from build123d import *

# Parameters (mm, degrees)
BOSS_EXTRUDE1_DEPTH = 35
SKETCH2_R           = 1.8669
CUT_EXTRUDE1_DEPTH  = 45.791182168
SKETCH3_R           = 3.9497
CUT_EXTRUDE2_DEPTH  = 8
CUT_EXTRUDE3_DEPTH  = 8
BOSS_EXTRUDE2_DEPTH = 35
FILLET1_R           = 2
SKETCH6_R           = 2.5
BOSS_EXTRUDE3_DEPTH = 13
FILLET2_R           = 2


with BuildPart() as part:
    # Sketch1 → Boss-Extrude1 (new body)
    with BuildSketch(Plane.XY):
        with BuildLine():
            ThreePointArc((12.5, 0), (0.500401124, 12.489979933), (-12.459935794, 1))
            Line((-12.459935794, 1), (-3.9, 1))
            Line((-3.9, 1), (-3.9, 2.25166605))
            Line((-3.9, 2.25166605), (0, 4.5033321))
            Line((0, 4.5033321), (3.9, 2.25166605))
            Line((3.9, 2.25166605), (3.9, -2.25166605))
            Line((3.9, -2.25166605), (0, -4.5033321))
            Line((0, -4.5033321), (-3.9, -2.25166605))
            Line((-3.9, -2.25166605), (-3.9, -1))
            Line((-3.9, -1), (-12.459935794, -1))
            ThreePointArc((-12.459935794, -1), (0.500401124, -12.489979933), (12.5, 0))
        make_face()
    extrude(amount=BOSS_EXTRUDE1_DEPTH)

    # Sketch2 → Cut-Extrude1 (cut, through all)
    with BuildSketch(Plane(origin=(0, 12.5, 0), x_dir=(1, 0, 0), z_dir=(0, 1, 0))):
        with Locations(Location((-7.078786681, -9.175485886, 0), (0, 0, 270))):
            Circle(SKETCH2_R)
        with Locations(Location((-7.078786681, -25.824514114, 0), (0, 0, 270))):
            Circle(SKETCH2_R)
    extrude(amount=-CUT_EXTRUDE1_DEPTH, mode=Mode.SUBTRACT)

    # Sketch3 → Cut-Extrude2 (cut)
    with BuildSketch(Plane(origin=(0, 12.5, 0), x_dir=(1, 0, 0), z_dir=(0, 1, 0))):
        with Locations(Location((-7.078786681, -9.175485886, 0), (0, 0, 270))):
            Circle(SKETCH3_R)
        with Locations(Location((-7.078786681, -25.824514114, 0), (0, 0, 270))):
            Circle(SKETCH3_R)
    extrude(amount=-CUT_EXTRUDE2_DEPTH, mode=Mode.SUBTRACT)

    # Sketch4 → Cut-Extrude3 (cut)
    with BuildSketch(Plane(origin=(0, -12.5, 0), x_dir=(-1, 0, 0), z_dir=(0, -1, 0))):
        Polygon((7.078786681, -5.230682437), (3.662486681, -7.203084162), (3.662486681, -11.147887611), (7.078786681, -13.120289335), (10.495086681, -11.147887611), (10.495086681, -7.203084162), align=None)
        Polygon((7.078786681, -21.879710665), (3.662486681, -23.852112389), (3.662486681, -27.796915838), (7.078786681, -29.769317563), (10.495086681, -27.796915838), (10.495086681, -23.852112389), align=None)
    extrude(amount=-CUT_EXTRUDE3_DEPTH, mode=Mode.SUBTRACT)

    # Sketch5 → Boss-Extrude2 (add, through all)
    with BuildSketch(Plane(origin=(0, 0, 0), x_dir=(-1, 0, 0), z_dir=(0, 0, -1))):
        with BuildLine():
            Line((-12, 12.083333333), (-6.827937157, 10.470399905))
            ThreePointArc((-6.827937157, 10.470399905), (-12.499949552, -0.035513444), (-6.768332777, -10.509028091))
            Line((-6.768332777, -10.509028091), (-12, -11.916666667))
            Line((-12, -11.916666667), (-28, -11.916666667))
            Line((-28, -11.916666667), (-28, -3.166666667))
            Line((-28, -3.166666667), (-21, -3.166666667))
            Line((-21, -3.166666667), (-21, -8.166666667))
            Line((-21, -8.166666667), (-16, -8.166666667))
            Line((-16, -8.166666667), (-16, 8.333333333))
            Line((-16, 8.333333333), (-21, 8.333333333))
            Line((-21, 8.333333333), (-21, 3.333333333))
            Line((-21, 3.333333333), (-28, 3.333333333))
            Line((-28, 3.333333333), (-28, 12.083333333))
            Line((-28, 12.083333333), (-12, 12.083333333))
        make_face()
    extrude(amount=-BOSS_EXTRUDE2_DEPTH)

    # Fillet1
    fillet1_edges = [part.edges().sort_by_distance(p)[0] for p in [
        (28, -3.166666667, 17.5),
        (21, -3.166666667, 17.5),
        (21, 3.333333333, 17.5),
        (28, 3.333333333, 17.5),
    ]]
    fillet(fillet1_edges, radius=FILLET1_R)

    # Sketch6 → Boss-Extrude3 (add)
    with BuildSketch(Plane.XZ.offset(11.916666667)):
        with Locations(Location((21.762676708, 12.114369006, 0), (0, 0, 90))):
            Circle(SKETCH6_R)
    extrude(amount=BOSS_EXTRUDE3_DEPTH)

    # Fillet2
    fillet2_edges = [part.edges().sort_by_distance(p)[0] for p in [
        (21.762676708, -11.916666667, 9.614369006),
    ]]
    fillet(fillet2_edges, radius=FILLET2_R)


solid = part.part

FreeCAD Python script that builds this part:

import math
import FreeCAD as App
import Part
import Sketcher
Q = App.Units.Quantity


def edges_at(feature, points):
    """Names of the edges that pass closest to the given points."""
    edges = feature.Shape.Edges
    near = lambda p: min(range(len(edges)), key=lambda i: edges[i].distToShape(Part.Vertex(*p))[0])
    return sorted({f"Edge{near(p) + 1}" for p in points})


def add_polygon(sketch, points):
    """Adds a closed chain of lines whose ends are joined by coincident constraints."""
    first, n = sketch.GeometryCount, len(points)
    for a, b in zip(points, points[1:] + points[:1]):
        sketch.addGeometry(Part.LineSegment(App.Vector(*a, 0), App.Vector(*b, 0)), False)
    for i in range(n):
        sketch.addConstraint(Sketcher.Constraint("Coincident", first + i, 2, first + (i + 1) % n, 1))

doc = App.newDocument("Part")
body = doc.addObject("PartDesign::Body", "Body")

sketch1 = body.newObject("Sketcher::SketchObject", "Sketch")
sketch1.AttachmentSupport = (doc.getObject("XY_Plane"), [""])
sketch1.MapMode = "FlatFace"
sketch1.addGeometry(Part.ArcOfCircle(Part.Circle(App.Vector(0, 0, 0), App.Vector(0, 0, 1), 12.5), math.radians(0), math.radians(175)), False)
sketch1.addGeometry(Part.LineSegment(App.Vector(-12.5, 1, 0), App.Vector(-3.9, 1, 0)), False)
sketch1.addGeometry(Part.LineSegment(App.Vector(-3.9, 1, 0), App.Vector(-3.9, 2.3, 0)), False)
sketch1.addGeometry(Part.LineSegment(App.Vector(-3.9, 2.3, 0), App.Vector(0, 4.5, 0)), False)
sketch1.addGeometry(Part.LineSegment(App.Vector(0, 4.5, 0), App.Vector(3.9, 2.3, 0)), False)
sketch1.addGeometry(Part.LineSegment(App.Vector(3.9, 2.3, 0), App.Vector(3.9, -2.3, 0)), False)
sketch1.addGeometry(Part.LineSegment(App.Vector(3.9, -2.3, 0), App.Vector(0, -4.5, 0)), False)
sketch1.addGeometry(Part.LineSegment(App.Vector(0, -4.5, 0), App.Vector(-3.9, -2.3, 0)), False)
sketch1.addGeometry(Part.LineSegment(App.Vector(-3.9, -2.3, 0), App.Vector(-3.9, -1, 0)), False)
sketch1.addGeometry(Part.LineSegment(App.Vector(-3.9, -1, 0), App.Vector(-12.5, -1, 0)), False)
sketch1.addGeometry(Part.ArcOfCircle(Part.Circle(App.Vector(0, 0, 0), App.Vector(0, 0, 1), 12.5), math.radians(-175), math.radians(0)), False)
sketch1.addConstraint(Sketcher.Constraint("Coincident", 0, 2, 1, 1))
sketch1.addConstraint(Sketcher.Constraint("Coincident", 1, 2, 2, 1))
sketch1.addConstraint(Sketcher.Constraint("Coincident", 2, 2, 3, 1))
sketch1.addConstraint(Sketcher.Constraint("Coincident", 3, 2, 4, 1))
sketch1.addConstraint(Sketcher.Constraint("Coincident", 4, 2, 5, 1))
sketch1.addConstraint(Sketcher.Constraint("Coincident", 5, 2, 6, 1))
sketch1.addConstraint(Sketcher.Constraint("Coincident", 6, 2, 7, 1))
sketch1.addConstraint(Sketcher.Constraint("Coincident", 7, 2, 8, 1))
sketch1.addConstraint(Sketcher.Constraint("Coincident", 8, 2, 9, 1))
sketch1.addConstraint(Sketcher.Constraint("Coincident", 9, 2, 10, 1))
sketch1.addConstraint(Sketcher.Constraint("Tangent", 10, 2, 0, 1))
sketch1.addConstraint(Sketcher.Constraint("Horizontal", 1))
sketch1.addConstraint(Sketcher.Constraint("Vertical", 2))
sketch1.addConstraint(Sketcher.Constraint("Vertical", 5))
sketch1.addConstraint(Sketcher.Constraint("Vertical", 8))
sketch1.addConstraint(Sketcher.Constraint("Horizontal", 9))
sketch1.addConstraint(Sketcher.Constraint("Coincident", 0, 3, -1, 1))
sketch1.addConstraint(Sketcher.Constraint("Equal", 0, 10))
sketch1.addConstraint(Sketcher.Constraint("Symmetric", 2, 2, 5, 2, -1, 1))
sketch1.addConstraint(Sketcher.Constraint("Symmetric", 3, 2, 6, 2, -1, 1))
sketch1.addConstraint(Sketcher.Constraint("Symmetric", 4, 2, 7, 2, -1, 1))
sketch1.addConstraint(Sketcher.Constraint("PointOnObject", 3, 2, -2))
sketch1.addConstraint(Sketcher.Constraint("PointOnObject", 10, 2, -1))
sketch1.addConstraint(Sketcher.Constraint("Horizontal", 2, 2, 4, 2))
sketch1.addConstraint(Sketcher.Constraint("Vertical", 0, 2, 9, 2))
sketch1.addConstraint(Sketcher.Constraint("Radius", 0, 12.5))
sketch1.addConstraint(Sketcher.Constraint("Angle", 3, Q("30 deg")))
sketch1.addConstraint(Sketcher.Constraint("DistanceY", -1, 1, 0, 2, 1.0))
sketch1.addConstraint(Sketcher.Constraint("DistanceX", 1, 2, -1, 1, 3.9))
sketch1.addConstraint(Sketcher.Constraint("DistanceY", 5, 2, 3, 2, 6.754998))
pad1 = body.newObject("PartDesign::Pad", "Pad")
pad1.Profile = sketch1
pad1.Length = 35

sketch2 = body.newObject("Sketcher::SketchObject", "Sketch001")
sketch2.AttachmentSupport = (doc.getObject("XZ_Plane"), [""])
sketch2.MapMode = "FlatFace"
sketch2.AttachmentOffset = App.Placement(App.Vector(0, 0, -12.5), App.Rotation())
sketch2.addGeometry(Part.Circle(App.Vector(-7.1, 9.2, 0), App.Vector(0, 0, 1), 1.9), False)
sketch2.addGeometry(Part.Circle(App.Vector(-7.1, 25.8, 0), App.Vector(0, 0, 1), 1.9), False)
sketch2.addConstraint(Sketcher.Constraint("Equal", 0, 1))
sketch2.addConstraint(Sketcher.Constraint("Vertical", 0, 3, 1, 3))
sketch2.addConstraint(Sketcher.Constraint("Diameter", 0, 3.7338))
sketch2.addConstraint(Sketcher.Constraint("DistanceY", 0, 3, 1, 3, 16.649028))
sketch2.addConstraint(Sketcher.Constraint("DistanceX", 0, 3, -1, 1, 7.078787))
sketch2.addConstraint(Sketcher.Constraint("DistanceY", -1, 1, 0, 3, 9.175486))
pocket1 = body.newObject("PartDesign::Pocket", "Pocket")
pocket1.Profile = sketch2
pocket1.Type = "ThroughAll"
pocket1.Reversed = True

sketch3 = body.newObject("Sketcher::SketchObject", "Sketch002")
sketch3.AttachmentSupport = (doc.getObject("XZ_Plane"), [""])
sketch3.MapMode = "FlatFace"
sketch3.AttachmentOffset = App.Placement(App.Vector(0, 0, -12.5), App.Rotation())
sketch3.addGeometry(Part.Circle(App.Vector(-7.1, 9.2, 0), App.Vector(0, 0, 1), 3.9), False)
sketch3.addGeometry(Part.Circle(App.Vector(-7.1, 25.8, 0), App.Vector(0, 0, 1), 3.9), False)
sketch3.addConstraint(Sketcher.Constraint("Equal", 0, 1))
sketch3.addConstraint(Sketcher.Constraint("Vertical", 0, 3, 1, 3))
sketch3.addConstraint(Sketcher.Constraint("Diameter", 0, 7.8994))
sketch3.addConstraint(Sketcher.Constraint("DistanceY", 0, 3, 1, 3, 16.649028))
sketch3.addConstraint(Sketcher.Constraint("DistanceX", 0, 3, -1, 1, 7.078787))
sketch3.addConstraint(Sketcher.Constraint("DistanceY", -1, 1, 0, 3, 9.175486))
pocket2 = body.newObject("PartDesign::Pocket", "Pocket001")
pocket2.Profile = sketch3
pocket2.Length = 8
pocket2.Reversed = True

sketch4 = body.newObject("Sketcher::SketchObject", "Sketch003")
sketch4.AttachmentSupport = (doc.getObject("XZ_Plane"), [""])
sketch4.MapMode = "FlatFace"
sketch4.AttachmentOffset = App.Placement(App.Vector(0, 0, 12.5), App.Rotation())
add_polygon(sketch4, [(-7.1, 5.2), (-3.7, 7.2), (-3.7, 11.1), (-7.1, 13.1), (-10.5, 11.1), (-10.5, 7.2)])
add_polygon(sketch4, [(-7.1, 21.9), (-3.7, 23.9), (-3.7, 27.8), (-7.1, 29.8), (-10.5, 27.8), (-10.5, 23.9)])
sketch4.addConstraint(Sketcher.Constraint("Vertical", 1))
sketch4.addConstraint(Sketcher.Constraint("Vertical", 4))
sketch4.addConstraint(Sketcher.Constraint("Vertical", 7))
sketch4.addConstraint(Sketcher.Constraint("Vertical", 10))
sketch4.addConstraint(Sketcher.Constraint("Parallel", 0, 3))
sketch4.addConstraint(Sketcher.Constraint("Parallel", 2, 5))
sketch4.addConstraint(Sketcher.Constraint("Parallel", 3, 6))
sketch4.addConstraint(Sketcher.Constraint("Parallel", 5, 8))
sketch4.addConstraint(Sketcher.Constraint("Parallel", 6, 9))
sketch4.addConstraint(Sketcher.Constraint("Parallel", 8, 11))
sketch4.addConstraint(Sketcher.Constraint("Horizontal", 1, 2, 3, 2))
sketch4.addConstraint(Sketcher.Constraint("Horizontal", 0, 2, 4, 2))
sketch4.addConstraint(Sketcher.Constraint("Horizontal", 7, 2, 9, 2))
sketch4.addConstraint(Sketcher.Constraint("Horizontal", 6, 2, 10, 2))
sketch4.addConstraint(Sketcher.Constraint("Vertical", 2, 2, 5, 2))
sketch4.addConstraint(Sketcher.Constraint("Vertical", 1, 2, 6, 2))
sketch4.addConstraint(Sketcher.Constraint("Vertical", 5, 2, 8, 2))
sketch4.addConstraint(Sketcher.Constraint("Equal", 4, 7))
sketch4.addConstraint(Sketcher.Constraint("Angle", 0, Q("30 deg")))
sketch4.addConstraint(Sketcher.Constraint("DistanceX", 2, 2, 1, 2, 3.4163))
sketch4.addConstraint(Sketcher.Constraint("DistanceY", 1, 1, 1, 2, 3.944803))
sketch4.addConstraint(Sketcher.Constraint("DistanceY", -1, 1, 2, 2, 13.120289))
sketch4.addConstraint(Sketcher.Constraint("DistanceY", -1, 1, 11, 2, 21.879711))
sketch4.addConstraint(Sketcher.Constraint("DistanceX", 0, 2, -1, 1, 3.662487))
pocket3 = body.newObject("PartDesign::Pocket", "Pocket002")
pocket3.Profile = sketch4
pocket3.Length = 8

sketch5 = body.newObject("Sketcher::SketchObject", "Sketch004")
sketch5.AttachmentSupport = (doc.getObject("XY_Plane"), [""])
sketch5.MapMode = "FlatFace"
sketch5.addGeometry(Part.LineSegment(App.Vector(7, 10, 0), App.Vector(12, 12, 0)), False)
sketch5.addGeometry(Part.LineSegment(App.Vector(12, 12, 0), App.Vector(28, 12, 0)), False)
sketch5.addGeometry(Part.LineSegment(App.Vector(28, 12, 0), App.Vector(28, 3, 0)), False)
sketch5.addGeometry(Part.LineSegment(App.Vector(28, 3, 0), App.Vector(21, 3, 0)), False)
sketch5.addGeometry(Part.LineSegment(App.Vector(21, 3, 0), App.Vector(21, 8, 0)), False)
sketch5.addGeometry(Part.LineSegment(App.Vector(21, 8, 0), App.Vector(16, 8, 0)), False)
sketch5.addGeometry(Part.LineSegment(App.Vector(16, 8, 0), App.Vector(16, -8, 0)), False)
sketch5.addGeometry(Part.LineSegment(App.Vector(16, -8, 0), App.Vector(21, -8, 0)), False)
sketch5.addGeometry(Part.LineSegment(App.Vector(21, -8, 0), App.Vector(21, -3, 0)), False)
sketch5.addGeometry(Part.LineSegment(App.Vector(21, -3, 0), App.Vector(28, -3, 0)), False)
sketch5.addGeometry(Part.LineSegment(App.Vector(28, -3, 0), App.Vector(28, -12, 0)), False)
sketch5.addGeometry(Part.LineSegment(App.Vector(28, -12, 0), App.Vector(12, -12, 0)), False)
sketch5.addGeometry(Part.LineSegment(App.Vector(12, -12, 0), App.Vector(7, -11, 0)), False)
sketch5.addGeometry(Part.ArcOfCircle(Part.Circle(App.Vector(0, 0, 0), App.Vector(0, 0, 1), 12), math.radians(-57), math.radians(57)), False)
sketch5.addConstraint(Sketcher.Constraint("Coincident", 0, 2, 1, 1))
sketch5.addConstraint(Sketcher.Constraint("Coincident", 1, 2, 2, 1))
sketch5.addConstraint(Sketcher.Constraint("Coincident", 2, 2, 3, 1))
sketch5.addConstraint(Sketcher.Constraint("Coincident", 3, 2, 4, 1))
sketch5.addConstraint(Sketcher.Constraint("Coincident", 4, 2, 5, 1))
sketch5.addConstraint(Sketcher.Constraint("Coincident", 5, 2, 6, 1))
sketch5.addConstraint(Sketcher.Constraint("Coincident", 6, 2, 7, 1))
sketch5.addConstraint(Sketcher.Constraint("Coincident", 7, 2, 8, 1))
sketch5.addConstraint(Sketcher.Constraint("Coincident", 8, 2, 9, 1))
sketch5.addConstraint(Sketcher.Constraint("Coincident", 9, 2, 10, 1))
sketch5.addConstraint(Sketcher.Constraint("Coincident", 10, 2, 11, 1))
sketch5.addConstraint(Sketcher.Constraint("Coincident", 11, 2, 12, 1))
sketch5.addConstraint(Sketcher.Constraint("Coincident", 12, 2, 13, 1))
sketch5.addConstraint(Sketcher.Constraint("Coincident", 13, 2, 0, 1))
sketch5.addConstraint(Sketcher.Constraint("Horizontal", 1))
sketch5.addConstraint(Sketcher.Constraint("Vertical", 2))
sketch5.addConstraint(Sketcher.Constraint("Horizontal", 3))
sketch5.addConstraint(Sketcher.Constraint("Vertical", 4))
sketch5.addConstraint(Sketcher.Constraint("Horizontal", 5))
sketch5.addConstraint(Sketcher.Constraint("Vertical", 6))
sketch5.addConstraint(Sketcher.Constraint("Horizontal", 7))
sketch5.addConstraint(Sketcher.Constraint("Vertical", 8))
sketch5.addConstraint(Sketcher.Constraint("Horizontal", 9))
sketch5.addConstraint(Sketcher.Constraint("Vertical", 10))
sketch5.addConstraint(Sketcher.Constraint("Horizontal", 11))
sketch5.addConstraint(Sketcher.Constraint("Coincident", 13, 3, -1, 1))
sketch5.addConstraint(Sketcher.Constraint("Vertical", 4, 2, 7, 2))
sketch5.addConstraint(Sketcher.Constraint("Vertical", 2, 2, 9, 2))
sketch5.addConstraint(Sketcher.Constraint("Vertical", 0, 2, 11, 2))
sketch5.addConstraint(Sketcher.Constraint("Equal", 7, 4))
sketch5.addConstraint(Sketcher.Constraint("Equal", 4, 8))
sketch5.addConstraint(Sketcher.Constraint("Equal", 2, 10))
sketch5.addConstraint(Sketcher.Constraint("Equal", 0, 12))
sketch5.addConstraint(Sketcher.Constraint("Radius", 13, 12.5))
sketch5.addConstraint(Sketcher.Constraint("DistanceX", 1, 1, 1, 2, 16.0))
sketch5.addConstraint(Sketcher.Constraint("DistanceX", 3, 2, 3, 1, 7.0))
sketch5.addConstraint(Sketcher.Constraint("DistanceX", 5, 2, 5, 1, 5.0))
sketch5.addConstraint(Sketcher.Constraint("DistanceY", 6, 2, 6, 1, 16.5))
sketch5.addConstraint(Sketcher.Constraint("DistanceX", -1, 1, 0, 2, 12.0))
sketch5.addConstraint(Sketcher.Constraint("DistanceY", 2, 2, 2, 1, 8.75))
sketch5.addConstraint(Sketcher.Constraint("DistanceY", -1, 1, 13, 2, 10.4704))
sketch5.addConstraint(Sketcher.Constraint("Distance", 0, 5.417729))
pad2 = body.newObject("PartDesign::Pad", "Pad001")
pad2.Profile = sketch5
pad2.Length = 35
doc.recompute()

fillet = body.newObject("PartDesign::Fillet", "Fillet")
fillet.Base = (pad2, edges_at(pad2, [
    (28, -3.167, 17.5),
    (21, -3.167, 17.5),
    (21, 3.333, 17.5),
    (28, 3.333, 17.5),
]))
fillet.Radius = 2

sketch6 = body.newObject("Sketcher::SketchObject", "Sketch005")
sketch6.AttachmentSupport = (doc.getObject("XZ_Plane"), [""])
sketch6.MapMode = "FlatFace"
sketch6.AttachmentOffset = App.Placement(App.Vector(0, 0, 11.916667), App.Rotation())
sketch6.addGeometry(Part.Circle(App.Vector(21.8, 12.1, 0), App.Vector(0, 0, 1), 2.5), False)
sketch6.addConstraint(Sketcher.Constraint("Diameter", 0, 5.0))
sketch6.addConstraint(Sketcher.Constraint("DistanceY", -1, 1, 0, 3, 12.114369))
sketch6.addConstraint(Sketcher.Constraint("DistanceX", -1, 1, 0, 3, 21.762677))
pad3 = body.newObject("PartDesign::Pad", "Pad002")
pad3.Profile = sketch6
pad3.Length = 13
doc.recompute()

fillet2 = body.newObject("PartDesign::Fillet", "Fillet001")
fillet2.Base = (pad3, edges_at(pad3, [(21.763, -11.917, 9.614)]))
fillet2.Radius = 2

doc.recompute()
